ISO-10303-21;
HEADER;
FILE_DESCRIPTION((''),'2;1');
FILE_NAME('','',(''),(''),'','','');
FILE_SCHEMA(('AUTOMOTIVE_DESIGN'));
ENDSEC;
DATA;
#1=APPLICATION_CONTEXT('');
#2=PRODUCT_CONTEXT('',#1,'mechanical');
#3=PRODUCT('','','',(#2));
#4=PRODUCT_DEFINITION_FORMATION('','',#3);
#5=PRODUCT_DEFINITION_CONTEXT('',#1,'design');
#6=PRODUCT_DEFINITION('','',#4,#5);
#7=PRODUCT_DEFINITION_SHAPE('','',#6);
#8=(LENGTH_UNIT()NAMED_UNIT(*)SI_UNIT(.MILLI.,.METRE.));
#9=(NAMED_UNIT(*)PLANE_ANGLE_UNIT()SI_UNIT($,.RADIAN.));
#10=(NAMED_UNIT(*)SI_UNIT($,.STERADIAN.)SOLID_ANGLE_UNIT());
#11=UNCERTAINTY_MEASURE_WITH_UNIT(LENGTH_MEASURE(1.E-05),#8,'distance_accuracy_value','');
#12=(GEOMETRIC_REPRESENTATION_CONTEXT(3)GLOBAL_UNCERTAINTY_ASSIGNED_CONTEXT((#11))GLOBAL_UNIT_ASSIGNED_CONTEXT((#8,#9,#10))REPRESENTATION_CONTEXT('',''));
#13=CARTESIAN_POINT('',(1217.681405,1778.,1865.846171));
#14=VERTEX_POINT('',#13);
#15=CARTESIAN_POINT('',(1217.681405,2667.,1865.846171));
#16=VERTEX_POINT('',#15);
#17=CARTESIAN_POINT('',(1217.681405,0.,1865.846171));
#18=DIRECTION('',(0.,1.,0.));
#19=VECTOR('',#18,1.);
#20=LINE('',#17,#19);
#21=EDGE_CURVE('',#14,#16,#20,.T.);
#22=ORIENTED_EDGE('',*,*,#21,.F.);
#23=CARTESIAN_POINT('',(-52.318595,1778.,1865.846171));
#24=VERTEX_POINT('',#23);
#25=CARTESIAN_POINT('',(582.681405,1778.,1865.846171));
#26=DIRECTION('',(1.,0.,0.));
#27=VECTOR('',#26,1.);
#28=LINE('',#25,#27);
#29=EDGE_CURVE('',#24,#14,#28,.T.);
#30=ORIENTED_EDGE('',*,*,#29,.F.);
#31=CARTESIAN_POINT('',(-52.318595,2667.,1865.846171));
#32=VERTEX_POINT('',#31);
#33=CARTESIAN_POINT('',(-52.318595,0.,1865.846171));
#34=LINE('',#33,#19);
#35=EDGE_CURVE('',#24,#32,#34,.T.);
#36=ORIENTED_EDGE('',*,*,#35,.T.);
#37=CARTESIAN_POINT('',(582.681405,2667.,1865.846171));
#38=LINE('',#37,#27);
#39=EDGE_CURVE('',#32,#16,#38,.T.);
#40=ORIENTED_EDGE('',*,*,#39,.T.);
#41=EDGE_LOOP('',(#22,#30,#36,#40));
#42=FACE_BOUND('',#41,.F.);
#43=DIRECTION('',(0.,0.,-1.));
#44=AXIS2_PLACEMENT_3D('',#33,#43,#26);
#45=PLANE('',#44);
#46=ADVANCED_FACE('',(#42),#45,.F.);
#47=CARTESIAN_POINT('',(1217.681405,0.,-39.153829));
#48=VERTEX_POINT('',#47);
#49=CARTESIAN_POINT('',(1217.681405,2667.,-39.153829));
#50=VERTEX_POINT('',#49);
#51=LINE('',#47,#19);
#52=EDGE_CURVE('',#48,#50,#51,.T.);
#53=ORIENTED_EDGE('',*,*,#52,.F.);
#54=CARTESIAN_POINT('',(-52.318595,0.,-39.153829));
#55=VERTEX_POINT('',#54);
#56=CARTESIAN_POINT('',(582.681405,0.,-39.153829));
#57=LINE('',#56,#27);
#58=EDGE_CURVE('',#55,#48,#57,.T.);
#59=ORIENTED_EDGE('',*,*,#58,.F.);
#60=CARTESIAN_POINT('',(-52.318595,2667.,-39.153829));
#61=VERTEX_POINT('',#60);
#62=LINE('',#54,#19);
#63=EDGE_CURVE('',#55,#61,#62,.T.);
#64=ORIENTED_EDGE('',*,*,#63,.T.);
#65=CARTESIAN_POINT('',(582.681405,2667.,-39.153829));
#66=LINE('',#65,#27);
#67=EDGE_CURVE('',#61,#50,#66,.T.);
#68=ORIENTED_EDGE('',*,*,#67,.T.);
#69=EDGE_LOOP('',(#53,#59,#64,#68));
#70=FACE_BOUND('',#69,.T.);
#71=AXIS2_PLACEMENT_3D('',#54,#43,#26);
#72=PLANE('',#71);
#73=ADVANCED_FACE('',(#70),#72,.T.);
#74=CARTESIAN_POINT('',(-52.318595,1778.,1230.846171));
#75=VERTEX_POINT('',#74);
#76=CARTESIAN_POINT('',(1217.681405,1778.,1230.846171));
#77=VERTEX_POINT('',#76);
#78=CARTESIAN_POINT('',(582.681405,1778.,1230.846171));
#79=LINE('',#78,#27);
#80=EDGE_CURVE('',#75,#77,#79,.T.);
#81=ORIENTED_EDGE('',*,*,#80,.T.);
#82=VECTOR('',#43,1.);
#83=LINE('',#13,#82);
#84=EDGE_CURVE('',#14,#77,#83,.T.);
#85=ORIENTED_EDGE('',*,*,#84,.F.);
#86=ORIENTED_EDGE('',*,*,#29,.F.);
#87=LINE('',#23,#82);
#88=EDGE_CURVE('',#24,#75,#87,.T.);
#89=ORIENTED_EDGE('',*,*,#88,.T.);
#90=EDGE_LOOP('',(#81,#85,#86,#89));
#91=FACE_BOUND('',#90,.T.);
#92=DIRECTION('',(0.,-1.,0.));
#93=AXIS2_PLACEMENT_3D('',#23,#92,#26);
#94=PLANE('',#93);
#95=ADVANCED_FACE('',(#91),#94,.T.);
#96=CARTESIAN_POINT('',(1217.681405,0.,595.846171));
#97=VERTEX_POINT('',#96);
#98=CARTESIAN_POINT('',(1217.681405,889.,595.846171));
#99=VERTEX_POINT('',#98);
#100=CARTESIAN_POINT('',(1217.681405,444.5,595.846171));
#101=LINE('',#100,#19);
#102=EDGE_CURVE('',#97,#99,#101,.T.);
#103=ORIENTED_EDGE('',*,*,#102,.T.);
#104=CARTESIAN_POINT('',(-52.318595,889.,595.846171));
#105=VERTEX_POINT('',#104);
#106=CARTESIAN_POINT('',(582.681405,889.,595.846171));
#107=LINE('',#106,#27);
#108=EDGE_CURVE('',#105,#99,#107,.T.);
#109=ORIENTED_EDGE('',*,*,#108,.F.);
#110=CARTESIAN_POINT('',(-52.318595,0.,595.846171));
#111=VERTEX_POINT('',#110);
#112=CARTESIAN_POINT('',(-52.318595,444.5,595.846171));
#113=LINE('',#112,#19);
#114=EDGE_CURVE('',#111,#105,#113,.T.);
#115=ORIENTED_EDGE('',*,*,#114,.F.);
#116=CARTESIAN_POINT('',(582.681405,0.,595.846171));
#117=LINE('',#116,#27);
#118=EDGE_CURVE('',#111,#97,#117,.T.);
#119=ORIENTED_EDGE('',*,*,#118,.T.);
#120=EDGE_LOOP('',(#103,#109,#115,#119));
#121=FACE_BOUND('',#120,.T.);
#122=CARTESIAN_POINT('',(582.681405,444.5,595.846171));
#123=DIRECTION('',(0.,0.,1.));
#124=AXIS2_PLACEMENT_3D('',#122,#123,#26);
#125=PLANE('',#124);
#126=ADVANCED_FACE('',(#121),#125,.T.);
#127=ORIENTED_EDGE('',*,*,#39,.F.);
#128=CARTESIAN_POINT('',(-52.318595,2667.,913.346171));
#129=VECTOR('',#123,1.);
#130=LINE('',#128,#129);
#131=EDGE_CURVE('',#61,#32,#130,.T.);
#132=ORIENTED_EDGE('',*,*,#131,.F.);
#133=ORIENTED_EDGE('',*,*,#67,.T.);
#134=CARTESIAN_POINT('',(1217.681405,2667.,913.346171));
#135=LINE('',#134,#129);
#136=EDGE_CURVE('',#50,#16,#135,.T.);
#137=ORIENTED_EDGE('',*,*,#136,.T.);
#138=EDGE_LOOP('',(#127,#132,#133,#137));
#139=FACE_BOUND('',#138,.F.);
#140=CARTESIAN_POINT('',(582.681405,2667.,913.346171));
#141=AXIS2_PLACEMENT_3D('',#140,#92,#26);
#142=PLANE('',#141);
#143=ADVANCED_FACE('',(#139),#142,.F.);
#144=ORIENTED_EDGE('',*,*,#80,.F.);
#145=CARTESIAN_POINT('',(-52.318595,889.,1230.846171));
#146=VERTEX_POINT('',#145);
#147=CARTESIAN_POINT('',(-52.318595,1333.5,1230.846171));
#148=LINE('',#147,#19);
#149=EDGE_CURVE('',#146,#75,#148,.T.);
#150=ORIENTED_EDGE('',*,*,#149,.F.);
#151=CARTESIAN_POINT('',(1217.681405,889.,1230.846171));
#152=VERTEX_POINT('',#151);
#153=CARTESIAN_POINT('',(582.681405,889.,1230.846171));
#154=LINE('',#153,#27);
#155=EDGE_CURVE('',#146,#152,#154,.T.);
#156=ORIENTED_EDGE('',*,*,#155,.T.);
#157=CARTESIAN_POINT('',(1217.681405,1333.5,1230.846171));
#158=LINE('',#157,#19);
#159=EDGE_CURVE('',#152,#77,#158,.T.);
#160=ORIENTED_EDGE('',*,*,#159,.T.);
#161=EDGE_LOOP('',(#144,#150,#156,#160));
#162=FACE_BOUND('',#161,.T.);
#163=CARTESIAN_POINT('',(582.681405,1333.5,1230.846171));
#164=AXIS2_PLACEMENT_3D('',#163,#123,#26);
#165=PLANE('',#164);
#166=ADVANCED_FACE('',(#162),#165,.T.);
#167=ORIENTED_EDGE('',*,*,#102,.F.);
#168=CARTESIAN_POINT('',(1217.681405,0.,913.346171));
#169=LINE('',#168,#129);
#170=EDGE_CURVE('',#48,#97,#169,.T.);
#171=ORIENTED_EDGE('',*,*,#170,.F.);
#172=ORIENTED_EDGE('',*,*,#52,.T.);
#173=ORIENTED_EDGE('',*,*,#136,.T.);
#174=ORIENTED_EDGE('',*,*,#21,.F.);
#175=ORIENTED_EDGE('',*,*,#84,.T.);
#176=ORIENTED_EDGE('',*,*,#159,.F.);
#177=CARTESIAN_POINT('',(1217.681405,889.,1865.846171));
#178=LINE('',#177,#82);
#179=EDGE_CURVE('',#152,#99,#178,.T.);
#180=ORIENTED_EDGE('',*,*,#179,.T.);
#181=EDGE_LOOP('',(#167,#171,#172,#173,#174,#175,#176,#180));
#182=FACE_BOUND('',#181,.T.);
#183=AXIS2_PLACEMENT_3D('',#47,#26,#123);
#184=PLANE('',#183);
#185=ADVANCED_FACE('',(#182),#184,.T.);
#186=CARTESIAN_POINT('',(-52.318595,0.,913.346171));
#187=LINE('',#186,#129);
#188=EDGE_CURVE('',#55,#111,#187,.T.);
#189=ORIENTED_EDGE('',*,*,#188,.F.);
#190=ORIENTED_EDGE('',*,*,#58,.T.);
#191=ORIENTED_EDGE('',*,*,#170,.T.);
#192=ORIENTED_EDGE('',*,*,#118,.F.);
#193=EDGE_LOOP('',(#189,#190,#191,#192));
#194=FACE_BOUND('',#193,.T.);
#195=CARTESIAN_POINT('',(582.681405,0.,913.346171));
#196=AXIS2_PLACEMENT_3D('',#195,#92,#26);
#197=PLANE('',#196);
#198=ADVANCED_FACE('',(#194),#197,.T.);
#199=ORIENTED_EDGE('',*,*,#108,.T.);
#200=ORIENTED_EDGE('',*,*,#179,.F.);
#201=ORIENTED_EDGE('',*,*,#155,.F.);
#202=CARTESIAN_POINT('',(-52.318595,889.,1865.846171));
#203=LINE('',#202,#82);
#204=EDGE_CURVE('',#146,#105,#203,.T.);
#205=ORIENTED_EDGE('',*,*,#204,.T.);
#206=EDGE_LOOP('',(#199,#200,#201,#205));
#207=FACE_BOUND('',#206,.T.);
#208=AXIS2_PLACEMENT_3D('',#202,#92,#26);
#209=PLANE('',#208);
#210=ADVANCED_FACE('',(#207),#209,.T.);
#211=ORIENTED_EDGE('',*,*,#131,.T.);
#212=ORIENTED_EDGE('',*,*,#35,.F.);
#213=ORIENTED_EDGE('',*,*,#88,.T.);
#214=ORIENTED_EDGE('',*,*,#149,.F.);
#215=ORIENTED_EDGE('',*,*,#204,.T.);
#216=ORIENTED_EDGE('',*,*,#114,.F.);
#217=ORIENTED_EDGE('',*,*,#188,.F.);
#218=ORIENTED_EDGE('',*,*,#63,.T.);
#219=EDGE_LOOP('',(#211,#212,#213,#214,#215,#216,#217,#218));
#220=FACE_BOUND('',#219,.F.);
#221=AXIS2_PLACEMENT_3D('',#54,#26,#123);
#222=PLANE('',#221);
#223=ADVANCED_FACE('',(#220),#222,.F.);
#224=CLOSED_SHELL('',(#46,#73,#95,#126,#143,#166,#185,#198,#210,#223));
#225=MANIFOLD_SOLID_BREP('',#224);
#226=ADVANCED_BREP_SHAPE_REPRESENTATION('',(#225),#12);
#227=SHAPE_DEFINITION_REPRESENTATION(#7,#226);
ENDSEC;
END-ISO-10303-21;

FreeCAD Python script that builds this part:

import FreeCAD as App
import Part
import Sketcher
Q = App.Units.Quantity


def add_polygon(sketch, points):
    """Adds a closed chain of lines whose ends are joined by coincident constraints."""
    first, n = sketch.GeometryCount, len(points)
    for a, b in zip(points, points[1:] + points[:1]):
        sketch.addGeometry(Part.LineSegment(App.Vector(*a, 0), App.Vector(*b, 0)), False)
    for i in range(n):
        sketch.addConstraint(Sketcher.Constraint("Coincident", first + i, 2, first + (i + 1) % n, 1))

doc = App.newDocument("Part")
body = doc.addObject("PartDesign::Body", "Body")

sketch1 = doc.addObject("Sketcher::SketchObject", "Sketch")
body.addObject(sketch1)
sketch1.AttachmentSupport = (doc.XZ_Plane, [""])
sketch1.MapMode = "FlatFace"
add_polygon(sketch1, [(-52, 1866), (-52, -39), (1218, -39), (1218, 1866)])
sketch1.addConstraint([
    Sketcher.Constraint("Vertical", 0),
    Sketcher.Constraint("Horizontal", 1),
    Sketcher.Constraint("Vertical", 2),
    Sketcher.Constraint("Horizontal", 3),
    Sketcher.Constraint("DistanceX", 1, 1, 1, 2, Q("50 in")),
    Sketcher.Constraint("DistanceY", 0, 2, 0, 1, Q("75 in")),
    Sketcher.Constraint("DistanceY", 0, 2, -1, 1, 39.153829),
    Sketcher.Constraint("DistanceX", 0, 2, -1, 1, 52.318595),
])
pad1 = doc.addObject("PartDesign::Pad", "Pad")
body.addObject(pad1)
pad1.Profile = sketch1
pad1.Length = Q("105 in")
pad1.Reversed = True

sketch2 = doc.addObject("Sketcher::SketchObject", "Sketch001")
body.addObject(sketch2)
sketch2.AttachmentSupport = (doc.XY_Plane, [""])
sketch2.MapMode = "FlatFace"
sketch2.AttachmentOffset = App.Placement(App.Vector(0, 0, 1865.846171), App.Rotation())
add_polygon(sketch2, [(-52, 889), (-52, 0), (1218, 0), (1218, 889)])
sketch2.addConstraint([
    Sketcher.Constraint("Vertical", 0),
    Sketcher.Constraint("Horizontal", 1),
    Sketcher.Constraint("Vertical", 2),
    Sketcher.Constraint("Horizontal", 3),
    Sketcher.Constraint("PointOnObject", 0, 2, -1),
    Sketcher.Constraint("DistanceX", 1, 1, 1, 2, Q("50 in")),
    Sketcher.Constraint("DistanceY", 0, 2, 0, 1, Q("35 in")),
    Sketcher.Constraint("DistanceX", 0, 2, -1, 1, 52.318595),
])
pocket1 = doc.addObject("PartDesign::Pocket", "Pocket")
body.addObject(pocket1)
pocket1.Profile = sketch2
pocket1.Length = Q("50 in")

sketch3 = doc.addObject("Sketcher::SketchObject", "Sketch002")
body.addObject(sketch3)
sketch3.AttachmentSupport = (doc.XY_Plane, [""])
sketch3.MapMode = "FlatFace"
sketch3.AttachmentOffset = App.Placement(App.Vector(0, 0, 1865.846171), App.Rotation())
add_polygon(sketch3, [(-52, 1778), (-52, 889), (1218, 889), (1218, 1778)])
sketch3.addConstraint([
    Sketcher.Constraint("Vertical", 0),
    Sketcher.Constraint("Horizontal", 1),
    Sketcher.Constraint("Vertical", 2),
    Sketcher.Constraint("Horizontal", 3),
    Sketcher.Constraint("DistanceX", 1, 1, 1, 2, Q("50 in")),
    Sketcher.Constraint("DistanceY", 0, 2, 0, 1, Q("35 in")),
    Sketcher.Constraint("DistanceY", -1, 1, 0, 2, Q("35 in")),
    Sketcher.Constraint("DistanceX", 0, 2, -1, 1, 52.318595),
])
pocket2 = doc.addObject("PartDesign::Pocket", "Pocket001")
body.addObject(pocket2)
pocket2.Profile = sketch3
pocket2.Length = Q("25 in")

doc.recompute()
